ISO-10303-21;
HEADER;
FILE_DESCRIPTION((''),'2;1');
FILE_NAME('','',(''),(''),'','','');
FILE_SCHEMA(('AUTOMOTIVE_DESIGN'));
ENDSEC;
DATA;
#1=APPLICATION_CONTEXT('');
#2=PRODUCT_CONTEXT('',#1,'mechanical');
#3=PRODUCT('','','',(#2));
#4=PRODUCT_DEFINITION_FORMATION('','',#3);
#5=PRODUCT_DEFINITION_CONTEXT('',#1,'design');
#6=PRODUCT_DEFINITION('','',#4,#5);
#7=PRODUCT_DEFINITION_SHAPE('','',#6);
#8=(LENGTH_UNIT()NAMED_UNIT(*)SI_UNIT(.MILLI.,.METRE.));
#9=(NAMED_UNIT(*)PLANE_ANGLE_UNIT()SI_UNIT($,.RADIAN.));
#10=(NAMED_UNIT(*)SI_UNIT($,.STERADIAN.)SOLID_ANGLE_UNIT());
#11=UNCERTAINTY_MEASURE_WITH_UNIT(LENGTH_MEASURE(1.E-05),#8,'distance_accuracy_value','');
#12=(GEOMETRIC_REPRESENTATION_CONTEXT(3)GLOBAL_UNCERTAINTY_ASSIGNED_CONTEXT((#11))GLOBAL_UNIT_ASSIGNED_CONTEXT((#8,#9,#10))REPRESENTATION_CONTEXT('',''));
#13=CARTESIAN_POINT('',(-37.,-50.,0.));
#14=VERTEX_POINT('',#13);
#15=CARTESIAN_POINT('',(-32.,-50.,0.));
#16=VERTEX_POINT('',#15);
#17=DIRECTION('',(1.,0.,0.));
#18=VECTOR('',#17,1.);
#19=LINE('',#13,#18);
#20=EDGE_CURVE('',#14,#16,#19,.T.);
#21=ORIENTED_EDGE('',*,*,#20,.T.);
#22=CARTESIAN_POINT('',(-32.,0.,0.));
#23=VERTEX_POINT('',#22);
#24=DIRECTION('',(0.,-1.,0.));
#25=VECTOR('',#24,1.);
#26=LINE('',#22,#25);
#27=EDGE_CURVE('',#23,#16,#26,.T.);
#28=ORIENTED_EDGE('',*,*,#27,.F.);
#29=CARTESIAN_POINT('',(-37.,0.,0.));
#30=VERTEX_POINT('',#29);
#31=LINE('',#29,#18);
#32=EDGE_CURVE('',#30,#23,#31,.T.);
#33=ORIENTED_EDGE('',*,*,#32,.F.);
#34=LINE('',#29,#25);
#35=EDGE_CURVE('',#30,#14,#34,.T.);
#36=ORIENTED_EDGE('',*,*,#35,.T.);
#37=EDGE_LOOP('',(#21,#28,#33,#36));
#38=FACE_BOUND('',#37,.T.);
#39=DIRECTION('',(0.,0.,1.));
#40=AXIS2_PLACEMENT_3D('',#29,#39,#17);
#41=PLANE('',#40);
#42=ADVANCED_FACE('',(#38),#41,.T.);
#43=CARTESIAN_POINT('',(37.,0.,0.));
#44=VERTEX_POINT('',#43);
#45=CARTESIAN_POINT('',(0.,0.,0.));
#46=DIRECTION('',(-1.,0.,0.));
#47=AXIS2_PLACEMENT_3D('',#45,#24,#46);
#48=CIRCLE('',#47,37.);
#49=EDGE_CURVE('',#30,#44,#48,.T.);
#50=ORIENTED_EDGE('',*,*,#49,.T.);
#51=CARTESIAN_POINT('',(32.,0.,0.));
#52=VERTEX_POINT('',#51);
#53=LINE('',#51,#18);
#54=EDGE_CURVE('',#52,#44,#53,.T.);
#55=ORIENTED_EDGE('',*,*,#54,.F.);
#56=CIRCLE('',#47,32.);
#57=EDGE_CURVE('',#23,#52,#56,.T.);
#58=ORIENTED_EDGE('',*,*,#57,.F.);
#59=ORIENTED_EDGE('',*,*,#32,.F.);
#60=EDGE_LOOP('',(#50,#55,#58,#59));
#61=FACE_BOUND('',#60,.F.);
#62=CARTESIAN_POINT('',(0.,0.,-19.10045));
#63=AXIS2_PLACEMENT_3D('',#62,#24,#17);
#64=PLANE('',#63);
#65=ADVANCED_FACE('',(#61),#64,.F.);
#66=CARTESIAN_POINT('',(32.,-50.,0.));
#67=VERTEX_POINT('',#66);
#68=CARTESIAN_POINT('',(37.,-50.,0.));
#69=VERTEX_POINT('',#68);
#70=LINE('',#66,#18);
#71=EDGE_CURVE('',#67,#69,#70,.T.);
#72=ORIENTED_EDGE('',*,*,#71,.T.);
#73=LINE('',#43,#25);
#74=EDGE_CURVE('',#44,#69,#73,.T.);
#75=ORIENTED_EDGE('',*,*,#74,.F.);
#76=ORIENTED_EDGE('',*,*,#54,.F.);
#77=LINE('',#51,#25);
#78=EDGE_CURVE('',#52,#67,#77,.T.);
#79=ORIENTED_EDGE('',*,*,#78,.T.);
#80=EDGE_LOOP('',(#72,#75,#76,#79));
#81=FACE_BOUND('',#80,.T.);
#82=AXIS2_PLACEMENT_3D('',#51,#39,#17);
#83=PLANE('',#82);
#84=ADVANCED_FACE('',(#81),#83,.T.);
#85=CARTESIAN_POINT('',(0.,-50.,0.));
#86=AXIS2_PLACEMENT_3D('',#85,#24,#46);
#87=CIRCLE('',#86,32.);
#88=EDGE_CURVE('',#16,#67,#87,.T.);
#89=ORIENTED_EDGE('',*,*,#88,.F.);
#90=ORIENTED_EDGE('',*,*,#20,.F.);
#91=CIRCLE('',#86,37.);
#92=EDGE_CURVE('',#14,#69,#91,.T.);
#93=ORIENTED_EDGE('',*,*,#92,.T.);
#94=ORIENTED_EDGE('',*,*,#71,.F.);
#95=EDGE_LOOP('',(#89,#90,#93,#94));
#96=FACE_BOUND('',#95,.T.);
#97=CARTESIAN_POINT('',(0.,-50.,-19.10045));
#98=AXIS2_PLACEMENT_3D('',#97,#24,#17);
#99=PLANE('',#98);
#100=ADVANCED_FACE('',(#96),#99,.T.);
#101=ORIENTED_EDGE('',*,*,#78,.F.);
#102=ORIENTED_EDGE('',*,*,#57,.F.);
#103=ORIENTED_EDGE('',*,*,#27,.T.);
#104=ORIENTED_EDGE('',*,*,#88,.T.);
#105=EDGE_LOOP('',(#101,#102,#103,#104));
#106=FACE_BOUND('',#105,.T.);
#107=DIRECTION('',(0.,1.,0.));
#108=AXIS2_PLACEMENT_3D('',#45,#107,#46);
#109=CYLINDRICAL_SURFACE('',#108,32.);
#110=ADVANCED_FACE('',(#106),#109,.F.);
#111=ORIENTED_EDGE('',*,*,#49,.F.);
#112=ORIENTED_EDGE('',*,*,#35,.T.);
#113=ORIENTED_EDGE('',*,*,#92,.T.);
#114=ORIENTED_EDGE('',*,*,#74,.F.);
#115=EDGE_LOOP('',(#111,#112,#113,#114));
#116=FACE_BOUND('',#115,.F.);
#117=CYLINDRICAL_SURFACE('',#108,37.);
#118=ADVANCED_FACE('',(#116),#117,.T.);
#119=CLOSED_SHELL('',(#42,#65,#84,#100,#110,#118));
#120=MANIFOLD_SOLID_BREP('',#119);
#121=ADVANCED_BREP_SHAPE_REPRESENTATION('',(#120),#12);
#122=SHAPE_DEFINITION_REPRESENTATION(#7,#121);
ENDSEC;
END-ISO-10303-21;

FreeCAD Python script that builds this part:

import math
import FreeCAD as App
import Part
import Sketcher

V = App.Vector
Q = App.Units.Quantity

doc = App.newDocument("Part")
body = doc.addObject("PartDesign::Body", "Body")

sketch1 = doc.addObject("Sketcher::SketchObject", "Sketch")
body.addObject(sketch1)
sketch1.AttachmentSupport = (doc.XZ_Plane, [""])
sketch1.MapMode = "FlatFace"
sketch1.addGeometry(Part.ArcOfCircle(Part.Circle(V(0, 0, 0), V(0, 0, 1), 37), math.radians(180), math.radians(360)), False)
sketch1.addGeometry(Part.LineSegment(V(37, 0, 0), V(32, 0, 0)), False)
sketch1.addGeometry(Part.ArcOfCircle(Part.Circle(V(0, 0, 0), V(0, 0, 1), 32), math.radians(180), math.radians(360)), False)
sketch1.addGeometry(Part.LineSegment(V(-32, 0, 0), V(-37, 0, 0)), False)
sketch1.addConstraint(Sketcher.Constraint("Coincident", 0, 2, 1, 1))
sketch1.addConstraint(Sketcher.Constraint("Coincident", 1, 2, 2, 2))
sketch1.addConstraint(Sketcher.Constraint("Coincident", 2, 1, 3, 1))
sketch1.addConstraint(Sketcher.Constraint("Coincident", 3, 2, 0, 1))
sketch1.addConstraint(Sketcher.Constraint("Horizontal", 1))
sketch1.addConstraint(Sketcher.Constraint("Horizontal", 3))
sketch1.addConstraint(Sketcher.Constraint("Coincident", 0, 3, -1, 1))
sketch1.addConstraint(Sketcher.Constraint("Coincident", 2, 3, -1, 1))
sketch1.addConstraint(Sketcher.Constraint("PointOnObject", 0, 2, -1))
sketch1.addConstraint(Sketcher.Constraint("PointOnObject", 2, 1, -1))
sketch1.addConstraint(Sketcher.Constraint("Radius", 0, Q("37 mm")))
sketch1.addConstraint(Sketcher.Constraint("Radius", 2, Q("32 mm")))
pad1 = doc.addObject("PartDesign::Pad", "Pad")
body.addObject(pad1)
pad1.Profile = sketch1
pad1.Length = 50

doc.recompute()
